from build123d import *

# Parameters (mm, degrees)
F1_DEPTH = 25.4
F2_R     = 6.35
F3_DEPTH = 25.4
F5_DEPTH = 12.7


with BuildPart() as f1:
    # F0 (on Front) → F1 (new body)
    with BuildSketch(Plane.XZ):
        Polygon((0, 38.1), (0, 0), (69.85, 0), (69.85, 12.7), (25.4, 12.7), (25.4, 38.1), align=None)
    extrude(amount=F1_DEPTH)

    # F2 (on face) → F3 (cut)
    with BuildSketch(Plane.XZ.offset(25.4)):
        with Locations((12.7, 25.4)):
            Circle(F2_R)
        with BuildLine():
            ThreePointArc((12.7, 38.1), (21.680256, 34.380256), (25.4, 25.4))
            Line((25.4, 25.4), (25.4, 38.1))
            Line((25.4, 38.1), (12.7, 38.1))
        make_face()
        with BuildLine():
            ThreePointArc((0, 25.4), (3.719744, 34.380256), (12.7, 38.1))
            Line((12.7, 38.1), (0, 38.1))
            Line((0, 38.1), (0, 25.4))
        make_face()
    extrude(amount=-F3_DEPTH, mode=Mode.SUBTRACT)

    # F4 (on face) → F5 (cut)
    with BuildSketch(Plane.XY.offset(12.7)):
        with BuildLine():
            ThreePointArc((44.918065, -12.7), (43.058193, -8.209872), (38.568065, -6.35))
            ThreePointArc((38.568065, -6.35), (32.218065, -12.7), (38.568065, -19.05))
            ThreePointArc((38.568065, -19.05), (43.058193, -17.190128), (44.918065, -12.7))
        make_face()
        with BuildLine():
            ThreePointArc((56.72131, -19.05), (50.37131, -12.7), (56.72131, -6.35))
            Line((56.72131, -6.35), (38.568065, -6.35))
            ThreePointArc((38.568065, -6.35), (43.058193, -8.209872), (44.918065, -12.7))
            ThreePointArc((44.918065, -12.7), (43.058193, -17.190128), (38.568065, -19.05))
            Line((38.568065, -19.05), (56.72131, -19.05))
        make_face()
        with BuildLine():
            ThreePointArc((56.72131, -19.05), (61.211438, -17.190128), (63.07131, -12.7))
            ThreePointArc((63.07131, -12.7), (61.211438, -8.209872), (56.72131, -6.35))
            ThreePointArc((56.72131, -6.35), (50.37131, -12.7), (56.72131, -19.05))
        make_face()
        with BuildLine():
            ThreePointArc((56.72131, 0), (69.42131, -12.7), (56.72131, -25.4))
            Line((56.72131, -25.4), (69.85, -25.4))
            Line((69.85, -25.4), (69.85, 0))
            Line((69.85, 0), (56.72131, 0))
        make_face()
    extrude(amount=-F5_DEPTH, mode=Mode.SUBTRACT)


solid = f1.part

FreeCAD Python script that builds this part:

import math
import FreeCAD as App
import Part
import Sketcher
Q = App.Units.Quantity

doc = App.newDocument("Part")
body = doc.addObject("PartDesign::Body", "Body")

sketch1 = body.newObject("Sketcher::SketchObject", "Sketch")
sketch1.AttachmentSupport = (doc.getObject("XZ_Plane"), [""])
sketch1.MapMode = "FlatFace"
sketch1.addGeometry([
    Part.LineSegment(App.Vector(0, 38, 0), App.Vector(0, 0, 0)),
    Part.LineSegment(App.Vector(0, 0, 0), App.Vector(70, 0, 0)),
    Part.LineSegment(App.Vector(70, 0, 0), App.Vector(70, 13, 0)),
    Part.LineSegment(App.Vector(70, 13, 0), App.Vector(25, 13, 0)),
    Part.LineSegment(App.Vector(25, 13, 0), App.Vector(25, 38, 0)),
    Part.LineSegment(App.Vector(25, 38, 0), App.Vector(0, 38, 0)),
], False)
sketch1.addConstraint([
    Sketcher.Constraint("Coincident", 0, 2, 1, 1),
    Sketcher.Constraint("Coincident", 1, 2, 2, 1),
    Sketcher.Constraint("Coincident", 2, 2, 3, 1),
    Sketcher.Constraint("Coincident", 3, 2, 4, 1),
    Sketcher.Constraint("Coincident", 4, 2, 5, 1),
    Sketcher.Constraint("Coincident", 5, 2, 0, 1),
    Sketcher.Constraint("Vertical", 0),
    Sketcher.Constraint("Horizontal", 1),
    Sketcher.Constraint("Vertical", 2),
    Sketcher.Constraint("Horizontal", 3),
    Sketcher.Constraint("Vertical", 4),
    Sketcher.Constraint("Horizontal", 5),
    Sketcher.Constraint("Coincident", 0, 2, -1, 1),
    Sketcher.Constraint("Equal", 5, 4),
    Sketcher.Constraint("DistanceX", 5, 2, 5, 1, Q("1 in")),
    Sketcher.Constraint("DistanceY", 0, 2, 0, 1, Q("1.5 in")),
    Sketcher.Constraint("DistanceX", 1, 1, 1, 2, Q("2.75 in")),
])
pad1 = body.newObject("PartDesign::Pad", "Pad")
pad1.Profile = sketch1
pad1.Length = Q("1 in")

sketch2 = body.newObject("Sketcher::SketchObject", "Sketch001")
sketch2.AttachmentSupport = (doc.getObject("XZ_Plane"), [""])
sketch2.MapMode = "FlatFace"
sketch2.AttachmentOffset = App.Placement(App.Vector(0, 0, 1 * 25.4), App.Rotation())
sketch2.addGeometry([
    Part.Circle(App.Vector(13, 25, 0), App.Vector(0, 0, 1), 6),
    Part.ArcOfCircle(Part.Circle(App.Vector(13, 25, 0), App.Vector(0, 0, 1), 13), math.radians(0), math.radians(90)),
    Part.LineSegment(App.Vector(25, 25, 0), App.Vector(25, 38, 0)),
    Part.LineSegment(App.Vector(25, 38, 0), App.Vector(13, 38, 0)),
    Part.ArcOfCircle(Part.Circle(App.Vector(13, 25, 0), App.Vector(0, 0, 1), 13), math.radians(90), math.radians(180)),
    Part.LineSegment(App.Vector(13, 38, 0), App.Vector(0, 38, 0)),
    Part.LineSegment(App.Vector(0, 38, 0), App.Vector(0, 25, 0)),
], False)
sketch2.addConstraint([
    Sketcher.Constraint("Tangent", 1, 1, 2, 1),
    Sketcher.Constraint("Coincident", 2, 2, 3, 1),
    Sketcher.Constraint("Tangent", 3, 2, 1, 2),
    Sketcher.Constraint("Tangent", 4, 1, 5, 1),
    Sketcher.Constraint("Coincident", 5, 2, 6, 1),
    Sketcher.Constraint("Tangent", 6, 2, 4, 2),
    Sketcher.Constraint("Vertical", 2),
    Sketcher.Constraint("Horizontal", 3),
    Sketcher.Constraint("Horizontal", 5),
    Sketcher.Constraint("Vertical", 6),
    Sketcher.Constraint("Coincident", 1, 3, 0, 3),
    Sketcher.Constraint("Coincident", 4, 3, 0, 3),
    Sketcher.Constraint("Equal", 1, 4),
    Sketcher.Constraint("PointOnObject", 5, 2, -2),
    Sketcher.Constraint("Diameter", 0, Q("0.5 in")),
    Sketcher.Constraint("Radius", 1, Q("0.5 in")),
    Sketcher.Constraint("DistanceY", -1, 1, 0, 3, Q("1 in")),
])
pocket1 = body.newObject("PartDesign::Pocket", "Pocket")
pocket1.Profile = sketch2
pocket1.Length = Q("1 in")

sketch3 = body.newObject("Sketcher::SketchObject", "Sketch002")
sketch3.AttachmentSupport = (doc.getObject("XY_Plane"), [""])
sketch3.MapMode = "FlatFace"
sketch3.AttachmentOffset = App.Placement(App.Vector(0, 0, 0.5 * 25.4), App.Rotation())
sketch3.addGeometry([
    Part.ArcOfCircle(Part.Circle(App.Vector(39, -13, 0), App.Vector(0, 0, 1), 6), math.radians(90), math.radians(270)),
    Part.LineSegment(App.Vector(39, -19, 0), App.Vector(57, -19, 0)),
    Part.ArcOfCircle(Part.Circle(App.Vector(57, -13, 0), App.Vector(0, 0, 1), 6), math.radians(-90), math.radians(0)),
    Part.ArcOfCircle(Part.Circle(App.Vector(57, -13, 0), App.Vector(0, 0, 1), 6), math.radians(0), math.radians(90)),
    Part.LineSegment(App.Vector(57, -6, 0), App.Vector(39, -6, 0)),
    Part.ArcOfCircle(Part.Circle(App.Vector(57, -13, 0), App.Vector(0, 0, 1), 13), math.radians(-90), math.radians(90)),
    Part.LineSegment(App.Vector(57, -25, 0), App.Vector(70, -25, 0)),
    Part.LineSegment(App.Vector(70, -25, 0), App.Vector(70, 0, 0)),
    Part.LineSegment(App.Vector(70, 0, 0), App.Vector(57, 0, 0)),
], False)
sketch3.addConstraint([
    Sketcher.Constraint("Tangent", 0, 2, 1, 1),
    Sketcher.Constraint("Tangent", 1, 2, 2, 1),
    Sketcher.Constraint("Tangent", 2, 2, 3, 1),
    Sketcher.Constraint("Tangent", 3, 2, 4, 1),
    Sketcher.Constraint("Tangent", 4, 2, 0, 1),
    Sketcher.Constraint("Tangent", 5, 1, 6, 1),
    Sketcher.Constraint("Coincident", 6, 2, 7, 1),
    Sketcher.Constraint("Coincident", 7, 2, 8, 1),
    Sketcher.Constraint("Tangent", 8, 2, 5, 2),
    Sketcher.Constraint("Horizontal", 1),
    Sketcher.Constraint("Horizontal", 4),
    Sketcher.Constraint("Horizontal", 6),
    Sketcher.Constraint("Vertical", 7),
    Sketcher.Constraint("Horizontal", 8),
    Sketcher.Constraint("Coincident", 5, 3, 2, 3),
    Sketcher.Constraint("Equal", 0, 2),
    Sketcher.Constraint("PointOnObject", 7, 2, -1),
    Sketcher.Constraint("Horizontal", 5, 3, 2, 2),
    Sketcher.Constraint("Radius", 5, Q("0.5 in")),
    Sketcher.Constraint("Radius", 0, Q("0.25 in")),
    Sketcher.Constraint("DistanceX", -1, 1, 6, 2, Q("2.75 in")),
    Sketcher.Constraint("DistanceX", 6, 1, 6, 2, 13.12869),
    Sketcher.Constraint("DistanceX", 1, 1, 1, 2, 18.153245),
])
pocket2 = body.newObject("PartDesign::Pocket", "Pocket001")
pocket2.Profile = sketch3
pocket2.Length = Q("0.5 in")

doc.recompute()
